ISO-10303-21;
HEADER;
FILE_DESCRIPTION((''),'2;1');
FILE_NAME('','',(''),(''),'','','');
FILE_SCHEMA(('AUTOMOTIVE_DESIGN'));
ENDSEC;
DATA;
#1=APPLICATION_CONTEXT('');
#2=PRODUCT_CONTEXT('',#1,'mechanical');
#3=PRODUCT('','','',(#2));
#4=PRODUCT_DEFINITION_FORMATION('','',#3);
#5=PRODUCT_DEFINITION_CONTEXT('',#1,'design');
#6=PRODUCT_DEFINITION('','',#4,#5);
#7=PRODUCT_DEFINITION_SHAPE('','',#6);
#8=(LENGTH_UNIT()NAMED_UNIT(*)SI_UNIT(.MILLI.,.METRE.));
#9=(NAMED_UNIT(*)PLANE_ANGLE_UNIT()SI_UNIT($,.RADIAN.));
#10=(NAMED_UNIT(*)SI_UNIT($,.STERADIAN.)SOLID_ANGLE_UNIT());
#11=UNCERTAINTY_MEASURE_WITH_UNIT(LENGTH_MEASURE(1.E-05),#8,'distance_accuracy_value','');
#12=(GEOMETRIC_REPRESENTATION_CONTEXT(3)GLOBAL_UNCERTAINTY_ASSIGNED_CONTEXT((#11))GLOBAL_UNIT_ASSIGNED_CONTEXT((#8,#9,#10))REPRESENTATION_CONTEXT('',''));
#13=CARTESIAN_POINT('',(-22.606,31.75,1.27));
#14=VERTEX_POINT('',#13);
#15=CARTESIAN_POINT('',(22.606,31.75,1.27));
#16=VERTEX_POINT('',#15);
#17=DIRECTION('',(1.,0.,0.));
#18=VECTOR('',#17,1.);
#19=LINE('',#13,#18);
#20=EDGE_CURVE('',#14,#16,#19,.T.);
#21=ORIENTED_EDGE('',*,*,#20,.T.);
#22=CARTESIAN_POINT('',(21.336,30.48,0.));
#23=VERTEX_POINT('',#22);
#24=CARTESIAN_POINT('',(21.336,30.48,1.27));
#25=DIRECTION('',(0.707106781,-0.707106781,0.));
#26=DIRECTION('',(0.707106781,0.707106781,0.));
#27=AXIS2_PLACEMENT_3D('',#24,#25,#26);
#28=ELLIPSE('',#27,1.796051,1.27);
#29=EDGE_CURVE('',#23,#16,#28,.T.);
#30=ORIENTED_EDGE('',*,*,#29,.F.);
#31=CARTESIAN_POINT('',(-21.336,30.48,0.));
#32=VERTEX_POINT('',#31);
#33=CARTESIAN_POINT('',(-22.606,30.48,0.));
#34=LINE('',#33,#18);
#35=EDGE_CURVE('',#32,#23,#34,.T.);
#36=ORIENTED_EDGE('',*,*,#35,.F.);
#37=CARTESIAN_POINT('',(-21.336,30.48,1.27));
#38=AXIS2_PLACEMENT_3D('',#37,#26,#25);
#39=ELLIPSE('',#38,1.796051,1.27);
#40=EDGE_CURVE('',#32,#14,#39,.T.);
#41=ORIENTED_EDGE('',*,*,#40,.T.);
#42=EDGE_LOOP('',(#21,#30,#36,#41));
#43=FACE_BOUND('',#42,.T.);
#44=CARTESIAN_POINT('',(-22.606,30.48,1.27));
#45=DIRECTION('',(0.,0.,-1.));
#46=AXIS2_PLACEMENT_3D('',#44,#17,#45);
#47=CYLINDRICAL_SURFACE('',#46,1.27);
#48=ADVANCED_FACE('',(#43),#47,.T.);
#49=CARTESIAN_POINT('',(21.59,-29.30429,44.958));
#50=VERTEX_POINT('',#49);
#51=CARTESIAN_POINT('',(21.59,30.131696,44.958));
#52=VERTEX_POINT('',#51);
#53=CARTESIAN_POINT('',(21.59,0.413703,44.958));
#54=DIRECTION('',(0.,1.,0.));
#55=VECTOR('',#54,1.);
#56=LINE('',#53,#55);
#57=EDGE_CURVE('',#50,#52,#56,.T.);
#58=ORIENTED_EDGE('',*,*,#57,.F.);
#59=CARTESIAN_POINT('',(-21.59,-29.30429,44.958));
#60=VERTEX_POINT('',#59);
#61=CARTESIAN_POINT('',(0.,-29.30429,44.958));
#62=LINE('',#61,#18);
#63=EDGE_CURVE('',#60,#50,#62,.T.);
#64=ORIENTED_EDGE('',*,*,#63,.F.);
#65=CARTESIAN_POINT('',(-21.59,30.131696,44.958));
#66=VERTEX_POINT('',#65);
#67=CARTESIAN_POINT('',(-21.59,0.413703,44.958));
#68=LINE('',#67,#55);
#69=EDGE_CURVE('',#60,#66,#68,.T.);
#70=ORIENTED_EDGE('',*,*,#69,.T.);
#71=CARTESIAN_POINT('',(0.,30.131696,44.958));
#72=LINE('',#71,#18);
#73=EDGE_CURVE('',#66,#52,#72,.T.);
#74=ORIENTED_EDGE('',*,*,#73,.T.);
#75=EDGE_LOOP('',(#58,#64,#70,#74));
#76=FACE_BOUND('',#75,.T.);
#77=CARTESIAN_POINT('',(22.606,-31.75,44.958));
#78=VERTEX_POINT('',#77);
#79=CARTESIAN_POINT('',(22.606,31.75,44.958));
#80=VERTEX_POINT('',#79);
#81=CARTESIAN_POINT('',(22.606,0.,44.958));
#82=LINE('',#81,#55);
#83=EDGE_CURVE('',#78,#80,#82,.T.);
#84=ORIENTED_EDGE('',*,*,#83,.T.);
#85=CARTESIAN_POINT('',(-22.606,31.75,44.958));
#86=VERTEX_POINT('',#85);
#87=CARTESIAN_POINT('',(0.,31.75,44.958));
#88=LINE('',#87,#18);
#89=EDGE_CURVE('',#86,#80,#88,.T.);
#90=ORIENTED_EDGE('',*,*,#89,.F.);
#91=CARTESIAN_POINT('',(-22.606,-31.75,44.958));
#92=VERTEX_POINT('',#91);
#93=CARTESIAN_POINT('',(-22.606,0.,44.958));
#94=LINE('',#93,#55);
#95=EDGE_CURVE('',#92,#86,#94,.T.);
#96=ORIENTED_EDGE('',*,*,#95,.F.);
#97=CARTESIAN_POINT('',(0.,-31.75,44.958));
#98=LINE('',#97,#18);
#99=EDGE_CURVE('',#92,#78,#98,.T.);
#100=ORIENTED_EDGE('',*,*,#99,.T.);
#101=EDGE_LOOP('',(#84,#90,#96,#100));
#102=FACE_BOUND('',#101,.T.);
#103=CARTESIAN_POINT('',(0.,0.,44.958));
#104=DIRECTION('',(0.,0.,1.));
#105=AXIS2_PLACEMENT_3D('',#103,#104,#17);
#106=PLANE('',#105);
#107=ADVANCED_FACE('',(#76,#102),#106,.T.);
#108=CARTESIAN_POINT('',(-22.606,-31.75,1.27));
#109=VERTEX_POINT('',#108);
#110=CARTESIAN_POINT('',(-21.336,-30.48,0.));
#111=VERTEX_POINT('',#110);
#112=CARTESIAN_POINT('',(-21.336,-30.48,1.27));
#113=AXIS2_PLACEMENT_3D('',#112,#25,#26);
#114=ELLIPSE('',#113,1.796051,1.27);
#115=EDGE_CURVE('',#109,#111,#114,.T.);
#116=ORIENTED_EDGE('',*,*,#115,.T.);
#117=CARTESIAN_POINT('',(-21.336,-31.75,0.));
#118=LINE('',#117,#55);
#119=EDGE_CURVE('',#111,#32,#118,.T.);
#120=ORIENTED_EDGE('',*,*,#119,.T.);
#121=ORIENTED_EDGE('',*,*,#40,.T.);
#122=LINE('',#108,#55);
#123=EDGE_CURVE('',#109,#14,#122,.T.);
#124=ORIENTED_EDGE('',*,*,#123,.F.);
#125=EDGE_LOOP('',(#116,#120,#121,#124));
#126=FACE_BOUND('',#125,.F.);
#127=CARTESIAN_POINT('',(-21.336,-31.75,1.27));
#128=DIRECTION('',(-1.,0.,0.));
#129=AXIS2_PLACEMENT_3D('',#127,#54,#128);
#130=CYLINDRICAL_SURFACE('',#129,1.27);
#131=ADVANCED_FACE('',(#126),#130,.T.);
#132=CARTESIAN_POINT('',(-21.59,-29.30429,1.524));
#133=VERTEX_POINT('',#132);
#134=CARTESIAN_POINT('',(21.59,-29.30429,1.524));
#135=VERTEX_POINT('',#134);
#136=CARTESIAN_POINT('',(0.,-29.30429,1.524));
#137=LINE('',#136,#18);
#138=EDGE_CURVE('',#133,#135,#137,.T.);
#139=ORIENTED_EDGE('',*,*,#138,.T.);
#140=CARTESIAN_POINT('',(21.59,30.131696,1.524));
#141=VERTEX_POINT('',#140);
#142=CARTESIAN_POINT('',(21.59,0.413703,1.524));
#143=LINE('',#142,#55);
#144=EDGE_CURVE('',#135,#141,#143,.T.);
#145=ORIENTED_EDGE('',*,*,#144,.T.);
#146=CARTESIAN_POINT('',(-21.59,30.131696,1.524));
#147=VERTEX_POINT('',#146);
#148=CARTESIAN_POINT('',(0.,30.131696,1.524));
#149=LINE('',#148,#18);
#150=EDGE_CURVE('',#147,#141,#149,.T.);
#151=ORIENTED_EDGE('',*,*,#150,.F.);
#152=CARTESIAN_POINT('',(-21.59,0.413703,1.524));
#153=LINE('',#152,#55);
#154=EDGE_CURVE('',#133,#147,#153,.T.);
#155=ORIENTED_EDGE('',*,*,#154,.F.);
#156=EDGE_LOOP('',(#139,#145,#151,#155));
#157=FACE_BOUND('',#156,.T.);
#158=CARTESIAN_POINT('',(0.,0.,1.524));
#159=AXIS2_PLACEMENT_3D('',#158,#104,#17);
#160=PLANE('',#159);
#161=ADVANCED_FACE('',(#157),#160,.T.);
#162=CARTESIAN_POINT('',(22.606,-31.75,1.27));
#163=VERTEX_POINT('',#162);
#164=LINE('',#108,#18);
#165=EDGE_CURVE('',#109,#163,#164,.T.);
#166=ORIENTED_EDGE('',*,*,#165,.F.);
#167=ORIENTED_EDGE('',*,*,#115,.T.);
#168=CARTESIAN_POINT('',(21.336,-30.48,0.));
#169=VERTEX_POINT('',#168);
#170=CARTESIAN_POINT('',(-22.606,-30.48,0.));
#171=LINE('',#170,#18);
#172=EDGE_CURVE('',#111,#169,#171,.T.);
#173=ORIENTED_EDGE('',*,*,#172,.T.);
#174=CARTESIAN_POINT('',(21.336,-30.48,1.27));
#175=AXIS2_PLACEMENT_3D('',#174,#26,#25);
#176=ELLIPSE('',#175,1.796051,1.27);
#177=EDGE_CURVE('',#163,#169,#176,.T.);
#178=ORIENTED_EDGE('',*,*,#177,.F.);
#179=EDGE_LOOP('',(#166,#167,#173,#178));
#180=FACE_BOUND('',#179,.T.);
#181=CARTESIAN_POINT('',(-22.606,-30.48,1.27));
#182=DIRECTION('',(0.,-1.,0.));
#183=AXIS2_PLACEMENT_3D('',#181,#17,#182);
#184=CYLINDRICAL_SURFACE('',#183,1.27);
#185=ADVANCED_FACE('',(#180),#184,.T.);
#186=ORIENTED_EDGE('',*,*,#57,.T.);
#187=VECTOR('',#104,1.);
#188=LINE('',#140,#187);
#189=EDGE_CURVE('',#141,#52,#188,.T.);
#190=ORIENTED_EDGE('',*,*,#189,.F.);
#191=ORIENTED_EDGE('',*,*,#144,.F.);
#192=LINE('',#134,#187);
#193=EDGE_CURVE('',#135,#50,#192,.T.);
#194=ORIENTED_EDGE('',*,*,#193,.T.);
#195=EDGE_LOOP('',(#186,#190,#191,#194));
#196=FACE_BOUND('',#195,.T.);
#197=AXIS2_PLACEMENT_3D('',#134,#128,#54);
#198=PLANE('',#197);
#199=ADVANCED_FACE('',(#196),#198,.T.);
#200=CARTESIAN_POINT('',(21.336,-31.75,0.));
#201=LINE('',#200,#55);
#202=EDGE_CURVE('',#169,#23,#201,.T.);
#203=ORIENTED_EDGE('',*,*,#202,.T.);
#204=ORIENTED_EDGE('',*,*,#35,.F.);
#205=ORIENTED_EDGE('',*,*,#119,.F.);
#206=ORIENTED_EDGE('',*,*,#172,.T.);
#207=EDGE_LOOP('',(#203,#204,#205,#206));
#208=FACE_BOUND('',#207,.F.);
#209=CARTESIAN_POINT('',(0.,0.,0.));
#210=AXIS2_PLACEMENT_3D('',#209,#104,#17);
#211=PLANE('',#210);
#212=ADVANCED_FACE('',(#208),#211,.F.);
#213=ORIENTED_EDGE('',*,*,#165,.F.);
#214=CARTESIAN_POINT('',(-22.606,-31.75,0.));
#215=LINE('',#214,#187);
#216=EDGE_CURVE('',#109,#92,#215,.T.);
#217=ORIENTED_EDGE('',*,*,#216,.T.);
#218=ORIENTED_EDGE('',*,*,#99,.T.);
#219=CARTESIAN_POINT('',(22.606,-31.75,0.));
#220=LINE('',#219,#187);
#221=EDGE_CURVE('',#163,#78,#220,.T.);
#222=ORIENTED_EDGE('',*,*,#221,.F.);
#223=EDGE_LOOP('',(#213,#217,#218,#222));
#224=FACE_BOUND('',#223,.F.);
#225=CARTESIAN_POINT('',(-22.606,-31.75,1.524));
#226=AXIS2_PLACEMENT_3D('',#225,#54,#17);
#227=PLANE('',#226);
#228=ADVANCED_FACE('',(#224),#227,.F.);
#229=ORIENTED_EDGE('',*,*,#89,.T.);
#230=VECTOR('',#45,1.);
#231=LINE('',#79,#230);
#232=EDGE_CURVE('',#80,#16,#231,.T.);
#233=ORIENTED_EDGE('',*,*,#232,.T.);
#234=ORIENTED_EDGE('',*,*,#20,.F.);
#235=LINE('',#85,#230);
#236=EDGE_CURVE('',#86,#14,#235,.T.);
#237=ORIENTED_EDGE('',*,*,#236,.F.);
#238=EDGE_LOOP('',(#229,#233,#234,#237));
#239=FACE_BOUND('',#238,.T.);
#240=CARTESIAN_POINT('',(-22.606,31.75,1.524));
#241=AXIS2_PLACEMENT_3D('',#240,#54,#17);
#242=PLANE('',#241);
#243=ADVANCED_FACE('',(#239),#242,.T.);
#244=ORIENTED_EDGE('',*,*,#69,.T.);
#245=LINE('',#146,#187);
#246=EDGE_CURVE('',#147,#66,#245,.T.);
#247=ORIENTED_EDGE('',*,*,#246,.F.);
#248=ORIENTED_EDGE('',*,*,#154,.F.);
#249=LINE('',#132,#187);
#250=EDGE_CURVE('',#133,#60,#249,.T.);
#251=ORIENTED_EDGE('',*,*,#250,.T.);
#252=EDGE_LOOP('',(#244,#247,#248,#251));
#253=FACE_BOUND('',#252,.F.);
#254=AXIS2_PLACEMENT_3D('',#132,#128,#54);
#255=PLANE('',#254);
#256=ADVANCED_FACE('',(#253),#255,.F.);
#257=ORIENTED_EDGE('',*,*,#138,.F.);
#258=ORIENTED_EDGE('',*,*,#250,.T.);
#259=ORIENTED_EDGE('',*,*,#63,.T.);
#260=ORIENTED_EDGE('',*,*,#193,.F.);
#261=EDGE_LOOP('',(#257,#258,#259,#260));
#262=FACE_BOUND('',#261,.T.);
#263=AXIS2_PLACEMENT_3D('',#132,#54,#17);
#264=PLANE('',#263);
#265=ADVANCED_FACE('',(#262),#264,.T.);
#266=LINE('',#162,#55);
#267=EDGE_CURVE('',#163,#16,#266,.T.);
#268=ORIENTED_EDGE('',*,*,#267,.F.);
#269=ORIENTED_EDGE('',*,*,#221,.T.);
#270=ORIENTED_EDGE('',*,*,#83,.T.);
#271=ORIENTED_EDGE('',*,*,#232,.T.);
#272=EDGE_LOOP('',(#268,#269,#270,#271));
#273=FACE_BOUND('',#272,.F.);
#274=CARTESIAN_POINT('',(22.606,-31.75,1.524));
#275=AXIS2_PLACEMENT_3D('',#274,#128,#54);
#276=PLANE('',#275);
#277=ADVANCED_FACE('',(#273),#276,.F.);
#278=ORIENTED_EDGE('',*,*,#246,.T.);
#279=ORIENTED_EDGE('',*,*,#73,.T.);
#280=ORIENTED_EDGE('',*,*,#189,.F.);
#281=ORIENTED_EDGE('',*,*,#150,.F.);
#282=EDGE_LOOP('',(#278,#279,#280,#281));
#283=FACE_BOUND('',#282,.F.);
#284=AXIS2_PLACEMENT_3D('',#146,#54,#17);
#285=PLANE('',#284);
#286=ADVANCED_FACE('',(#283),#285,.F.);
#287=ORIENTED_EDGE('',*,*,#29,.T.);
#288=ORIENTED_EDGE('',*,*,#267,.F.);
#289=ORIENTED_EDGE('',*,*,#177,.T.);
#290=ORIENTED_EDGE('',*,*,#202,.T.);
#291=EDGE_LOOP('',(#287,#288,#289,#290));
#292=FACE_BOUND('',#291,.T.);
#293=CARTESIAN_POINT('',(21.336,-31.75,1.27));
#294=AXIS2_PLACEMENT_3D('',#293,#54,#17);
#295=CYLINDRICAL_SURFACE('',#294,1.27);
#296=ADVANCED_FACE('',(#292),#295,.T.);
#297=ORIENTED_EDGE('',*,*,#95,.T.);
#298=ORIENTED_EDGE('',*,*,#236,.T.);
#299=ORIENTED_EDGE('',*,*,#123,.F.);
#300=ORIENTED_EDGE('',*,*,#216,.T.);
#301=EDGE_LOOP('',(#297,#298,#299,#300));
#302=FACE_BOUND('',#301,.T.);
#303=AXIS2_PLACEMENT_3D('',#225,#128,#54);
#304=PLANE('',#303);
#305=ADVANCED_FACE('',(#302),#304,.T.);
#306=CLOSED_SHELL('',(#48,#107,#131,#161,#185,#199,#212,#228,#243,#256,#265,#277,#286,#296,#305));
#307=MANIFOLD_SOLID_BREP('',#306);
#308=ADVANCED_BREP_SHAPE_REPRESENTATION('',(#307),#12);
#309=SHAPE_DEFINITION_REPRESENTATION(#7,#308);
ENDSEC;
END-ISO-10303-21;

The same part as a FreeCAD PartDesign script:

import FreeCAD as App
import Part
import Sketcher
Q = App.Units.Quantity


def edges_at(feature, points):
    """Names of the edges that pass closest to the given points."""
    edges = feature.Shape.Edges
    near = lambda p: min(range(len(edges)), key=lambda i: edges[i].distToShape(Part.Vertex(*p))[0])
    return sorted({f"Edge{near(p) + 1}" for p in points})

doc = App.newDocument("Part")
body = doc.addObject("PartDesign::Body", "Body")

# Sketch on XY plane
sketch1 = body.newObject("Sketcher::SketchObject", "Sketch")
sketch1.AttachmentSupport = (doc.getObject("XY_Plane"), [""])
sketch1.MapMode = "FlatFace"
sketch1.addGeometry(Part.LineSegment(App.Vector(-23, 32, 0), App.Vector(-23, -32, 0)), False)
sketch1.addGeometry(Part.LineSegment(App.Vector(-23, -32, 0), App.Vector(23, -32, 0)), False)
sketch1.addGeometry(Part.LineSegment(App.Vector(23, -32, 0), App.Vector(23, 32, 0)), False)
sketch1.addGeometry(Part.LineSegment(App.Vector(23, 32, 0), App.Vector(-23, 32, 0)), False)
sketch1.addConstraint(Sketcher.Constraint("Coincident", 0, 2, 1, 1))
sketch1.addConstraint(Sketcher.Constraint("Coincident", 1, 2, 2, 1))
sketch1.addConstraint(Sketcher.Constraint("Coincident", 2, 2, 3, 1))
sketch1.addConstraint(Sketcher.Constraint("Coincident", 3, 2, 0, 1))
sketch1.addConstraint(Sketcher.Constraint("Vertical", 0))
sketch1.addConstraint(Sketcher.Constraint("Horizontal", 1))
sketch1.addConstraint(Sketcher.Constraint("Vertical", 2))
sketch1.addConstraint(Sketcher.Constraint("Horizontal", 3))
sketch1.addConstraint(Sketcher.Constraint("Symmetric", 0, 2, 2, 2, -1, 1))
sketch1.addConstraint(Sketcher.Constraint("DistanceY", 0, 2, 0, 1, Q("2.5 in")))
sketch1.addConstraint(Sketcher.Constraint("DistanceX", 1, 1, 1, 2, Q("1.78 in")))
pad1 = body.newObject("PartDesign::Pad", "Pad")
pad1.Profile = sketch1
pad1.Length = Q("0.06 in")

# Sketch on XY plane
sketch2 = body.newObject("Sketcher::SketchObject", "Sketch001")
sketch2.AttachmentSupport = (doc.getObject("XY_Plane"), [""])
sketch2.MapMode = "FlatFace"
sketch2.AttachmentOffset = App.Placement(App.Vector(0, 0, 0.06 * 25.4), App.Rotation())
sketch2.addGeometry(Part.LineSegment(App.Vector(-23, 32, 0), App.Vector(-23, -32, 0)), False)
sketch2.addGeometry(Part.LineSegment(App.Vector(-23, -32, 0), App.Vector(23, -32, 0)), False)
sketch2.addGeometry(Part.LineSegment(App.Vector(23, -32, 0), App.Vector(23, 32, 0)), False)
sketch2.addGeometry(Part.LineSegment(App.Vector(23, 32, 0), App.Vector(-23, 32, 0)), False)
sketch2.addGeometry(Part.LineSegment(App.Vector(22, -29, 0), App.Vector(-22, -29, 0)), False)
sketch2.addGeometry(Part.LineSegment(App.Vector(-22, -29, 0), App.Vector(-22, 30, 0)), False)
sketch2.addGeometry(Part.LineSegment(App.Vector(-22, 30, 0), App.Vector(22, 30, 0)), False)
sketch2.addGeometry(Part.LineSegment(App.Vector(22, 30, 0), App.Vector(22, -29, 0)), False)
sketch2.addConstraint(Sketcher.Constraint("Coincident", 0, 2, 1, 1))
sketch2.addConstraint(Sketcher.Constraint("Coincident", 1, 2, 2, 1))
sketch2.addConstraint(Sketcher.Constraint("Coincident", 2, 2, 3, 1))
sketch2.addConstraint(Sketcher.Constraint("Coincident", 3, 2, 0, 1))
sketch2.addConstraint(Sketcher.Constraint("Coincident", 4, 2, 5, 1))
sketch2.addConstraint(Sketcher.Constraint("Coincident", 5, 2, 6, 1))
sketch2.addConstraint(Sketcher.Constraint("Coincident", 6, 2, 7, 1))
sketch2.addConstraint(Sketcher.Constraint("Coincident", 7, 2, 4, 1))
sketch2.addConstraint(Sketcher.Constraint("Vertical", 0))
sketch2.addConstraint(Sketcher.Constraint("Horizontal", 1))
sketch2.addConstraint(Sketcher.Constraint("Vertical", 2))
sketch2.addConstraint(Sketcher.Constraint("Horizontal", 3))
sketch2.addConstraint(Sketcher.Constraint("Horizontal", 4))
sketch2.addConstraint(Sketcher.Constraint("Vertical", 5))
sketch2.addConstraint(Sketcher.Constraint("Horizontal", 6))
sketch2.addConstraint(Sketcher.Constraint("Vertical", 7))
sketch2.addConstraint(Sketcher.Constraint("Symmetric", 0, 2, 2, 2, -1, 1))
sketch2.addConstraint(Sketcher.Constraint("DistanceX", 4, 2, 4, 1, Q("1.7 in")))
sketch2.addConstraint(Sketcher.Constraint("DistanceY", 0, 2, 0, 1, Q("2.5 in")))
sketch2.addConstraint(Sketcher.Constraint("DistanceX", 1, 1, 1, 2, Q("1.78 in")))
sketch2.addConstraint(Sketcher.Constraint("DistanceX", 4, 2, -1, 1, Q("0.85 in")))
sketch2.addConstraint(Sketcher.Constraint("DistanceY", 5, 1, 5, 2, Q("59.435986 mm")))
sketch2.addConstraint(Sketcher.Constraint("DistanceY", 4, 2, -1, 1, Q("29.30429 mm")))
pad2 = body.newObject("PartDesign::Pad", "Pad001")
pad2.Profile = sketch2
pad2.Length = Q("1.71 in")
doc.recompute()

fillet = body.newObject("PartDesign::Fillet", "Fillet")
fillet.Base = (pad2, edges_at(pad2, [
    (0, 31.75, 0),
    (-22.606, 0, 0),
    (0, -31.75, 0),
    (22.606, 0, 0),
]))
fillet.Radius = Q("0.05 in")

doc.recompute()
